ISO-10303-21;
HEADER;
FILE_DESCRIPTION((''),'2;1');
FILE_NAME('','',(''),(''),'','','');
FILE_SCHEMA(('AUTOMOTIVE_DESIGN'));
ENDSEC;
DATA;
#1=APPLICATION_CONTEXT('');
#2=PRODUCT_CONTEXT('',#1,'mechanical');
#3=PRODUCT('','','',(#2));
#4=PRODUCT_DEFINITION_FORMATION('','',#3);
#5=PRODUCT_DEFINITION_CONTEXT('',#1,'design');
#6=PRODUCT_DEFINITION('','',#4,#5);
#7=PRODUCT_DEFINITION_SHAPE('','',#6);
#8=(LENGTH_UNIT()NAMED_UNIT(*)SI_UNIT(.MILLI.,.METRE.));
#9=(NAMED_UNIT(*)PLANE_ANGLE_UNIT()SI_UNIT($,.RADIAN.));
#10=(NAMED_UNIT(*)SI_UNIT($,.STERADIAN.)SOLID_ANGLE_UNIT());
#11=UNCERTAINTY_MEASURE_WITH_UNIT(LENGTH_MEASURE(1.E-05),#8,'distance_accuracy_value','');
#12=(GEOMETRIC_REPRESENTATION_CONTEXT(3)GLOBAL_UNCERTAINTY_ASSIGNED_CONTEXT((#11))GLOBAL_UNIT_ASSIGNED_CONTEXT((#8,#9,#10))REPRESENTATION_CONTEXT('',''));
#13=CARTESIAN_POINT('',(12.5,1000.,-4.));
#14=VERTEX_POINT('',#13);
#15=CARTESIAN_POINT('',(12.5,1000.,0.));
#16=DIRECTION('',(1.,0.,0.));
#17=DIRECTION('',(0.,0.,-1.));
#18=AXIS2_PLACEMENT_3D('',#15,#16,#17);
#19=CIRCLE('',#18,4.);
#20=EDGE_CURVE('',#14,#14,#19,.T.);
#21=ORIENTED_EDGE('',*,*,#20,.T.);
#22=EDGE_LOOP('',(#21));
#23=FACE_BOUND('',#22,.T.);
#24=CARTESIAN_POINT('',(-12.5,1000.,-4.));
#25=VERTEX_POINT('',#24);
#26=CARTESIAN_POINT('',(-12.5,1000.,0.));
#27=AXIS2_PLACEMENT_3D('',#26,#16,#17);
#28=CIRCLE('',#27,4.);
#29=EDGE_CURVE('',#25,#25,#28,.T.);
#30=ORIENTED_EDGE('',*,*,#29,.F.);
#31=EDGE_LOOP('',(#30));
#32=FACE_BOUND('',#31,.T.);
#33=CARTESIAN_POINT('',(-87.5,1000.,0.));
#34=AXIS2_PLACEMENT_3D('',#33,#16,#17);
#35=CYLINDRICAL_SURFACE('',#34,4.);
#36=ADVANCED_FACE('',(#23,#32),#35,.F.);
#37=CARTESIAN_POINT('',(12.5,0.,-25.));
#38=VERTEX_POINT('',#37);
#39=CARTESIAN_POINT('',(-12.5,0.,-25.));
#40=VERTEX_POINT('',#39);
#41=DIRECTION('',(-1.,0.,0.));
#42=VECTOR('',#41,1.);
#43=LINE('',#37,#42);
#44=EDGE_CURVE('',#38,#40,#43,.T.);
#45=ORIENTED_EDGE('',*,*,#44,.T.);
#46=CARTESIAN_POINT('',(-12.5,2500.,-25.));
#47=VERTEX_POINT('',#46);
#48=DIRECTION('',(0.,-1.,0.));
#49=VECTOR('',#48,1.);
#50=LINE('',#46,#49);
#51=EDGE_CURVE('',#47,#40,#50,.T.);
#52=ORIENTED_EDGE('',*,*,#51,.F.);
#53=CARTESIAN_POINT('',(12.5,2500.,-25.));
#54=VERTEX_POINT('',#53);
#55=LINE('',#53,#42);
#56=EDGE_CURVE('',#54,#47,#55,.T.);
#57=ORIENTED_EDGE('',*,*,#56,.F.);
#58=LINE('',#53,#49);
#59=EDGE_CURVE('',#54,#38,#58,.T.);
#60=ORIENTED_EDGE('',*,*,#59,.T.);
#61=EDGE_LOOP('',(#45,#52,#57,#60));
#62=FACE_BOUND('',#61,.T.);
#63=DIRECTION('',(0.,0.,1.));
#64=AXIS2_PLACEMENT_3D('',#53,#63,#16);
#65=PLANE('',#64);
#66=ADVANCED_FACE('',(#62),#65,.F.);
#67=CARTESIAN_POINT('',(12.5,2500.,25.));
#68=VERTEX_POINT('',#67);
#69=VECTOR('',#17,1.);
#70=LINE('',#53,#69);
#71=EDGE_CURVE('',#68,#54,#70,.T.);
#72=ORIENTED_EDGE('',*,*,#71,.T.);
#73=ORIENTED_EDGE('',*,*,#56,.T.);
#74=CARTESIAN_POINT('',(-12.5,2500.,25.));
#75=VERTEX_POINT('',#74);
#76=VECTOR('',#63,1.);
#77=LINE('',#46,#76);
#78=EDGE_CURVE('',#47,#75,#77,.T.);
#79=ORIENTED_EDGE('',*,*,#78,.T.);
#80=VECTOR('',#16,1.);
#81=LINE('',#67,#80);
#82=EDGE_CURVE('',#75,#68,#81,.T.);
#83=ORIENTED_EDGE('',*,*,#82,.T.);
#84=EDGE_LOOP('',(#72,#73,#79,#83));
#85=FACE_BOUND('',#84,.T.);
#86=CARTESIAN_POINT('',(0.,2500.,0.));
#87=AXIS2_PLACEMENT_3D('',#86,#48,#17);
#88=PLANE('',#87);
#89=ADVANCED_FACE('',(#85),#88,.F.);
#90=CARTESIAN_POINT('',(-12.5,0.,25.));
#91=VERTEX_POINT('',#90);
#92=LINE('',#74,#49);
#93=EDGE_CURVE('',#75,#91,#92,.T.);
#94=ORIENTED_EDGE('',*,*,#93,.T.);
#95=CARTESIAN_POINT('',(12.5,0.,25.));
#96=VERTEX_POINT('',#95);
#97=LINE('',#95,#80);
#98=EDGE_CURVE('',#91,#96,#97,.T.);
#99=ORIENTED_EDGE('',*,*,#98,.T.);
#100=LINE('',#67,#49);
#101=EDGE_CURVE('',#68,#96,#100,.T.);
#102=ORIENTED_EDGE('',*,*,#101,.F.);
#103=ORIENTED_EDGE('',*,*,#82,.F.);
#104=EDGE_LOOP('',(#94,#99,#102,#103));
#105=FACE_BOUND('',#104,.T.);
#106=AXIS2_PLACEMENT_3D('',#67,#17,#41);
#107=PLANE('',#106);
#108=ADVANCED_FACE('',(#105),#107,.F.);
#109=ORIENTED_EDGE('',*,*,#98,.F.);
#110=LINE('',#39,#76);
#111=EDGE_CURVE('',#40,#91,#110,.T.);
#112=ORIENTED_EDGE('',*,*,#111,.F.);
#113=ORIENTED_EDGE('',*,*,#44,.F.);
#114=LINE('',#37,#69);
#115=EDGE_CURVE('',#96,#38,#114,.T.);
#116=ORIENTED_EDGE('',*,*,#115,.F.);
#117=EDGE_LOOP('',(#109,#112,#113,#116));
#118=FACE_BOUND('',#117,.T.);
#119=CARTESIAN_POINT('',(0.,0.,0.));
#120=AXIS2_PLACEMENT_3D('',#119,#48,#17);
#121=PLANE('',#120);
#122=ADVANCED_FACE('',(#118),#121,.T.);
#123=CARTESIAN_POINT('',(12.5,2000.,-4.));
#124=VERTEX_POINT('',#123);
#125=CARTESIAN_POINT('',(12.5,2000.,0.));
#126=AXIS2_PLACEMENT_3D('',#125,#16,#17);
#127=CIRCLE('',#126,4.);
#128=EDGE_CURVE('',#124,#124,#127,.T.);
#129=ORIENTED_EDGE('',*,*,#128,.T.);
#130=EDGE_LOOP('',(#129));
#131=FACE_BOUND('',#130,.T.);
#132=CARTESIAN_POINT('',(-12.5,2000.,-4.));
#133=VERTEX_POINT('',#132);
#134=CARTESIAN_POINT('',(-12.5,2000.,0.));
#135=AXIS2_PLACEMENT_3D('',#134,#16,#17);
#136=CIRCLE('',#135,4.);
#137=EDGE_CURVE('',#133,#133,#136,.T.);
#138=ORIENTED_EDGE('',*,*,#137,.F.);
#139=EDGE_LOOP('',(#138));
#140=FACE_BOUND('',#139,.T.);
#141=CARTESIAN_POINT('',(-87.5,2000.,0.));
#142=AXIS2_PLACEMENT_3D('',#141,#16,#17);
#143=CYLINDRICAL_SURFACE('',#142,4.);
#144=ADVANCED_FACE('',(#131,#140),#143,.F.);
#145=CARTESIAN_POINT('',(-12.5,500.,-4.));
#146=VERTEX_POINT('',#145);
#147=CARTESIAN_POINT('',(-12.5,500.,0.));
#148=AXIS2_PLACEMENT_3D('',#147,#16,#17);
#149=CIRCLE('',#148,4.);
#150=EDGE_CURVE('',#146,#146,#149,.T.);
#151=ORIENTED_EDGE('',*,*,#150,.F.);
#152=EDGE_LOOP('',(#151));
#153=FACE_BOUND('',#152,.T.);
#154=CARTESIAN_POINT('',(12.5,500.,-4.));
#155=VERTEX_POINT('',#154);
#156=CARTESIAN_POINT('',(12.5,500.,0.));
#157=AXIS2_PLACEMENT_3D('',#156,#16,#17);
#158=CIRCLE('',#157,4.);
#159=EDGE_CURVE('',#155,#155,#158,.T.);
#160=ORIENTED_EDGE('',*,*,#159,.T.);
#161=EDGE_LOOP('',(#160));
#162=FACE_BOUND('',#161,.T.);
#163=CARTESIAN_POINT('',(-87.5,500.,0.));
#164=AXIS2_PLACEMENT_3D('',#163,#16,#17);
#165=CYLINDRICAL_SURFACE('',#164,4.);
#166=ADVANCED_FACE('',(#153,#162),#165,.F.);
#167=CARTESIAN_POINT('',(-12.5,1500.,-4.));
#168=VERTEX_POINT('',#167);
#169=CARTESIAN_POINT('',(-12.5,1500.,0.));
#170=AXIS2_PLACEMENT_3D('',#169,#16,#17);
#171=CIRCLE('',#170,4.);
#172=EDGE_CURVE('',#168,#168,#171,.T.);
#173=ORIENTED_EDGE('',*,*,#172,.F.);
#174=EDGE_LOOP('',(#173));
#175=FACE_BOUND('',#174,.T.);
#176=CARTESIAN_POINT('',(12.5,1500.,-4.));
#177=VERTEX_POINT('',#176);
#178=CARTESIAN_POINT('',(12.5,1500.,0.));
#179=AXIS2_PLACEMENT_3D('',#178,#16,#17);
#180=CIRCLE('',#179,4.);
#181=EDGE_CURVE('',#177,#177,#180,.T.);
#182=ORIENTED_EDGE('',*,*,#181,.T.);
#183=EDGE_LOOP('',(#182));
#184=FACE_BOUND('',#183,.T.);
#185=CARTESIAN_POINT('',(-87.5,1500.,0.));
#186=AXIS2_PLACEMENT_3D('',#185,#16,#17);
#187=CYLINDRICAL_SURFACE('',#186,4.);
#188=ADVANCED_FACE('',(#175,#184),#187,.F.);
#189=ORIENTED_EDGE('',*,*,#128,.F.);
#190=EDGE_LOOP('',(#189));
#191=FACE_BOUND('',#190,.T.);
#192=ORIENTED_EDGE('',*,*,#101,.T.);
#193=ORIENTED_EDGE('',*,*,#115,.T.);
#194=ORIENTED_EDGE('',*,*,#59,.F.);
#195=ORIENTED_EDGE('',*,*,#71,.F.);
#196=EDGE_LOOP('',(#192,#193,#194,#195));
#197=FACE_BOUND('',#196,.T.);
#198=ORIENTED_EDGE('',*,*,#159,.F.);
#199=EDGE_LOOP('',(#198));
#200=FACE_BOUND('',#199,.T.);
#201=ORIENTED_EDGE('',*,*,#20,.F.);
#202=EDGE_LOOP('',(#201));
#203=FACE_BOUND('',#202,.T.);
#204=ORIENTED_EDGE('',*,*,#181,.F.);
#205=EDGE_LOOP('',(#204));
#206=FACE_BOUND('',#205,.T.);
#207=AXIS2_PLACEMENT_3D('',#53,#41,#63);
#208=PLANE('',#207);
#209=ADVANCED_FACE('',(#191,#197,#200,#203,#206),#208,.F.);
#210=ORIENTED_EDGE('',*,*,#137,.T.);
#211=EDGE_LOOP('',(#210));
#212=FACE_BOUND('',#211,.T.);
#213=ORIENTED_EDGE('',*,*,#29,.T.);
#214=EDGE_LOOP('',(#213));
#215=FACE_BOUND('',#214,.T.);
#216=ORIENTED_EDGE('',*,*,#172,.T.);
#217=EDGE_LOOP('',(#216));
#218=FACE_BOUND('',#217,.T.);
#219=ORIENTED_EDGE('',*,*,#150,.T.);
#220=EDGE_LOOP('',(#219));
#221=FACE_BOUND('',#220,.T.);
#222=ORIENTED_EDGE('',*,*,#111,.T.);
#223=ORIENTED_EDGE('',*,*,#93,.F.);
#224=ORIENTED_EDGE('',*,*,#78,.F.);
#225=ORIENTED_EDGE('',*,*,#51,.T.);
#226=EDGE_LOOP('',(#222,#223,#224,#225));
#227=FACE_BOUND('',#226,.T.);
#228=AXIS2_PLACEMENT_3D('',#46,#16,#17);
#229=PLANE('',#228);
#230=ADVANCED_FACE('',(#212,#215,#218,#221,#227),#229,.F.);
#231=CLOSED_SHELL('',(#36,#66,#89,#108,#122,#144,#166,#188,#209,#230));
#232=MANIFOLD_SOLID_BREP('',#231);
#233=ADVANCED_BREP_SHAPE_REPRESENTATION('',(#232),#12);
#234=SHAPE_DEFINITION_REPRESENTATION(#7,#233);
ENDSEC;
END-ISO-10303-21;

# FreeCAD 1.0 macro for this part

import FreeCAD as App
import Part
import Sketcher

V = App.Vector
Q = App.Units.Quantity


def add_polygon(sketch, points):
    """Adds a closed chain of lines whose ends are joined by coincident constraints."""
    first, n = sketch.GeometryCount, len(points)
    for a, b in zip(points, points[1:] + points[:1]):
        sketch.addGeometry(Part.LineSegment(App.Vector(*a, 0), App.Vector(*b, 0)), False)
    for i in range(n):
        sketch.addConstraint(Sketcher.Constraint("Coincident", first + i, 2, first + (i + 1) % n, 1))

doc = App.newDocument("Part")
body = doc.addObject("PartDesign::Body", "Body")

sketch1 = body.newObject("Sketcher::SketchObject", "Sketch")
sketch1.AttachmentSupport = (doc.getObject("XZ_Plane"), [""])
sketch1.MapMode = "FlatFace"
add_polygon(sketch1, [(-12.5, -25), (-12.5, 25), (12.5, 25), (12.5, -25)])
sketch1.addConstraint(Sketcher.Constraint("Vertical", 0))
sketch1.addConstraint(Sketcher.Constraint("Horizontal", 1))
sketch1.addConstraint(Sketcher.Constraint("Vertical", 2))
sketch1.addConstraint(Sketcher.Constraint("Horizontal", 3))
sketch1.addConstraint(Sketcher.Constraint("Symmetric", 0, 2, 2, 2, -1, 1))
sketch1.addConstraint(Sketcher.Constraint("DistanceX", 1, 1, 1, 2, Q("25 mm")))
sketch1.addConstraint(Sketcher.Constraint("DistanceY", 0, 1, 0, 2, Q("50 mm")))
pad1 = body.newObject("PartDesign::Pad", "Pad")
pad1.Profile = sketch1
pad1.Length = 2500
pad1.Reversed = True

sketch2 = body.newObject("Sketcher::SketchObject", "Sketch001")
sketch2.AttachmentSupport = (doc.getObject("YZ_Plane"), [""])
sketch2.MapMode = "FlatFace"
sketch2.AttachmentOffset = App.Placement(V(0, 0, 12.5), App.Rotation())
sketch2.addGeometry(Part.Circle(V(500, 0, 0), V(0, 0, 1), 4), False)
sketch2.addGeometry(Part.Circle(V(1000, 0, 0), V(0, 0, 1), 4), False)
sketch2.addGeometry(Part.Circle(V(1500, 0, 0), V(0, 0, 1), 4), False)
sketch2.addGeometry(Part.Circle(V(2000, 0, 0), V(0, 0, 1), 4), False)
sketch2.addConstraint(Sketcher.Constraint("Equal", 0, 1))
sketch2.addConstraint(Sketcher.Constraint("Equal", 1, 2))
sketch2.addConstraint(Sketcher.Constraint("Equal", 2, 3))
sketch2.addConstraint(Sketcher.Constraint("PointOnObject", 0, 3, -1))
sketch2.addConstraint(Sketcher.Constraint("PointOnObject", 1, 3, -1))
sketch2.addConstraint(Sketcher.Constraint("PointOnObject", 2, 3, -1))
sketch2.addConstraint(Sketcher.Constraint("PointOnObject", 3, 3, -1))
sketch2.addConstraint(Sketcher.Constraint("Diameter", 0, Q("8 mm")))
sketch2.addConstraint(Sketcher.Constraint("DistanceX", -1, 1, 0, 3, Q("500 mm")))
sketch2.addConstraint(Sketcher.Constraint("DistanceX", -1, 1, 1, 3, Q("1000 mm")))
sketch2.addConstraint(Sketcher.Constraint("DistanceX", -1, 1, 2, 3, Q("1500 mm")))
sketch2.addConstraint(Sketcher.Constraint("DistanceX", -1, 1, 3, 3, Q("2000 mm")))
pocket1 = body.newObject("PartDesign::Pocket", "Pocket")
pocket1.Profile = sketch2
pocket1.Length = 100

doc.recompute()
